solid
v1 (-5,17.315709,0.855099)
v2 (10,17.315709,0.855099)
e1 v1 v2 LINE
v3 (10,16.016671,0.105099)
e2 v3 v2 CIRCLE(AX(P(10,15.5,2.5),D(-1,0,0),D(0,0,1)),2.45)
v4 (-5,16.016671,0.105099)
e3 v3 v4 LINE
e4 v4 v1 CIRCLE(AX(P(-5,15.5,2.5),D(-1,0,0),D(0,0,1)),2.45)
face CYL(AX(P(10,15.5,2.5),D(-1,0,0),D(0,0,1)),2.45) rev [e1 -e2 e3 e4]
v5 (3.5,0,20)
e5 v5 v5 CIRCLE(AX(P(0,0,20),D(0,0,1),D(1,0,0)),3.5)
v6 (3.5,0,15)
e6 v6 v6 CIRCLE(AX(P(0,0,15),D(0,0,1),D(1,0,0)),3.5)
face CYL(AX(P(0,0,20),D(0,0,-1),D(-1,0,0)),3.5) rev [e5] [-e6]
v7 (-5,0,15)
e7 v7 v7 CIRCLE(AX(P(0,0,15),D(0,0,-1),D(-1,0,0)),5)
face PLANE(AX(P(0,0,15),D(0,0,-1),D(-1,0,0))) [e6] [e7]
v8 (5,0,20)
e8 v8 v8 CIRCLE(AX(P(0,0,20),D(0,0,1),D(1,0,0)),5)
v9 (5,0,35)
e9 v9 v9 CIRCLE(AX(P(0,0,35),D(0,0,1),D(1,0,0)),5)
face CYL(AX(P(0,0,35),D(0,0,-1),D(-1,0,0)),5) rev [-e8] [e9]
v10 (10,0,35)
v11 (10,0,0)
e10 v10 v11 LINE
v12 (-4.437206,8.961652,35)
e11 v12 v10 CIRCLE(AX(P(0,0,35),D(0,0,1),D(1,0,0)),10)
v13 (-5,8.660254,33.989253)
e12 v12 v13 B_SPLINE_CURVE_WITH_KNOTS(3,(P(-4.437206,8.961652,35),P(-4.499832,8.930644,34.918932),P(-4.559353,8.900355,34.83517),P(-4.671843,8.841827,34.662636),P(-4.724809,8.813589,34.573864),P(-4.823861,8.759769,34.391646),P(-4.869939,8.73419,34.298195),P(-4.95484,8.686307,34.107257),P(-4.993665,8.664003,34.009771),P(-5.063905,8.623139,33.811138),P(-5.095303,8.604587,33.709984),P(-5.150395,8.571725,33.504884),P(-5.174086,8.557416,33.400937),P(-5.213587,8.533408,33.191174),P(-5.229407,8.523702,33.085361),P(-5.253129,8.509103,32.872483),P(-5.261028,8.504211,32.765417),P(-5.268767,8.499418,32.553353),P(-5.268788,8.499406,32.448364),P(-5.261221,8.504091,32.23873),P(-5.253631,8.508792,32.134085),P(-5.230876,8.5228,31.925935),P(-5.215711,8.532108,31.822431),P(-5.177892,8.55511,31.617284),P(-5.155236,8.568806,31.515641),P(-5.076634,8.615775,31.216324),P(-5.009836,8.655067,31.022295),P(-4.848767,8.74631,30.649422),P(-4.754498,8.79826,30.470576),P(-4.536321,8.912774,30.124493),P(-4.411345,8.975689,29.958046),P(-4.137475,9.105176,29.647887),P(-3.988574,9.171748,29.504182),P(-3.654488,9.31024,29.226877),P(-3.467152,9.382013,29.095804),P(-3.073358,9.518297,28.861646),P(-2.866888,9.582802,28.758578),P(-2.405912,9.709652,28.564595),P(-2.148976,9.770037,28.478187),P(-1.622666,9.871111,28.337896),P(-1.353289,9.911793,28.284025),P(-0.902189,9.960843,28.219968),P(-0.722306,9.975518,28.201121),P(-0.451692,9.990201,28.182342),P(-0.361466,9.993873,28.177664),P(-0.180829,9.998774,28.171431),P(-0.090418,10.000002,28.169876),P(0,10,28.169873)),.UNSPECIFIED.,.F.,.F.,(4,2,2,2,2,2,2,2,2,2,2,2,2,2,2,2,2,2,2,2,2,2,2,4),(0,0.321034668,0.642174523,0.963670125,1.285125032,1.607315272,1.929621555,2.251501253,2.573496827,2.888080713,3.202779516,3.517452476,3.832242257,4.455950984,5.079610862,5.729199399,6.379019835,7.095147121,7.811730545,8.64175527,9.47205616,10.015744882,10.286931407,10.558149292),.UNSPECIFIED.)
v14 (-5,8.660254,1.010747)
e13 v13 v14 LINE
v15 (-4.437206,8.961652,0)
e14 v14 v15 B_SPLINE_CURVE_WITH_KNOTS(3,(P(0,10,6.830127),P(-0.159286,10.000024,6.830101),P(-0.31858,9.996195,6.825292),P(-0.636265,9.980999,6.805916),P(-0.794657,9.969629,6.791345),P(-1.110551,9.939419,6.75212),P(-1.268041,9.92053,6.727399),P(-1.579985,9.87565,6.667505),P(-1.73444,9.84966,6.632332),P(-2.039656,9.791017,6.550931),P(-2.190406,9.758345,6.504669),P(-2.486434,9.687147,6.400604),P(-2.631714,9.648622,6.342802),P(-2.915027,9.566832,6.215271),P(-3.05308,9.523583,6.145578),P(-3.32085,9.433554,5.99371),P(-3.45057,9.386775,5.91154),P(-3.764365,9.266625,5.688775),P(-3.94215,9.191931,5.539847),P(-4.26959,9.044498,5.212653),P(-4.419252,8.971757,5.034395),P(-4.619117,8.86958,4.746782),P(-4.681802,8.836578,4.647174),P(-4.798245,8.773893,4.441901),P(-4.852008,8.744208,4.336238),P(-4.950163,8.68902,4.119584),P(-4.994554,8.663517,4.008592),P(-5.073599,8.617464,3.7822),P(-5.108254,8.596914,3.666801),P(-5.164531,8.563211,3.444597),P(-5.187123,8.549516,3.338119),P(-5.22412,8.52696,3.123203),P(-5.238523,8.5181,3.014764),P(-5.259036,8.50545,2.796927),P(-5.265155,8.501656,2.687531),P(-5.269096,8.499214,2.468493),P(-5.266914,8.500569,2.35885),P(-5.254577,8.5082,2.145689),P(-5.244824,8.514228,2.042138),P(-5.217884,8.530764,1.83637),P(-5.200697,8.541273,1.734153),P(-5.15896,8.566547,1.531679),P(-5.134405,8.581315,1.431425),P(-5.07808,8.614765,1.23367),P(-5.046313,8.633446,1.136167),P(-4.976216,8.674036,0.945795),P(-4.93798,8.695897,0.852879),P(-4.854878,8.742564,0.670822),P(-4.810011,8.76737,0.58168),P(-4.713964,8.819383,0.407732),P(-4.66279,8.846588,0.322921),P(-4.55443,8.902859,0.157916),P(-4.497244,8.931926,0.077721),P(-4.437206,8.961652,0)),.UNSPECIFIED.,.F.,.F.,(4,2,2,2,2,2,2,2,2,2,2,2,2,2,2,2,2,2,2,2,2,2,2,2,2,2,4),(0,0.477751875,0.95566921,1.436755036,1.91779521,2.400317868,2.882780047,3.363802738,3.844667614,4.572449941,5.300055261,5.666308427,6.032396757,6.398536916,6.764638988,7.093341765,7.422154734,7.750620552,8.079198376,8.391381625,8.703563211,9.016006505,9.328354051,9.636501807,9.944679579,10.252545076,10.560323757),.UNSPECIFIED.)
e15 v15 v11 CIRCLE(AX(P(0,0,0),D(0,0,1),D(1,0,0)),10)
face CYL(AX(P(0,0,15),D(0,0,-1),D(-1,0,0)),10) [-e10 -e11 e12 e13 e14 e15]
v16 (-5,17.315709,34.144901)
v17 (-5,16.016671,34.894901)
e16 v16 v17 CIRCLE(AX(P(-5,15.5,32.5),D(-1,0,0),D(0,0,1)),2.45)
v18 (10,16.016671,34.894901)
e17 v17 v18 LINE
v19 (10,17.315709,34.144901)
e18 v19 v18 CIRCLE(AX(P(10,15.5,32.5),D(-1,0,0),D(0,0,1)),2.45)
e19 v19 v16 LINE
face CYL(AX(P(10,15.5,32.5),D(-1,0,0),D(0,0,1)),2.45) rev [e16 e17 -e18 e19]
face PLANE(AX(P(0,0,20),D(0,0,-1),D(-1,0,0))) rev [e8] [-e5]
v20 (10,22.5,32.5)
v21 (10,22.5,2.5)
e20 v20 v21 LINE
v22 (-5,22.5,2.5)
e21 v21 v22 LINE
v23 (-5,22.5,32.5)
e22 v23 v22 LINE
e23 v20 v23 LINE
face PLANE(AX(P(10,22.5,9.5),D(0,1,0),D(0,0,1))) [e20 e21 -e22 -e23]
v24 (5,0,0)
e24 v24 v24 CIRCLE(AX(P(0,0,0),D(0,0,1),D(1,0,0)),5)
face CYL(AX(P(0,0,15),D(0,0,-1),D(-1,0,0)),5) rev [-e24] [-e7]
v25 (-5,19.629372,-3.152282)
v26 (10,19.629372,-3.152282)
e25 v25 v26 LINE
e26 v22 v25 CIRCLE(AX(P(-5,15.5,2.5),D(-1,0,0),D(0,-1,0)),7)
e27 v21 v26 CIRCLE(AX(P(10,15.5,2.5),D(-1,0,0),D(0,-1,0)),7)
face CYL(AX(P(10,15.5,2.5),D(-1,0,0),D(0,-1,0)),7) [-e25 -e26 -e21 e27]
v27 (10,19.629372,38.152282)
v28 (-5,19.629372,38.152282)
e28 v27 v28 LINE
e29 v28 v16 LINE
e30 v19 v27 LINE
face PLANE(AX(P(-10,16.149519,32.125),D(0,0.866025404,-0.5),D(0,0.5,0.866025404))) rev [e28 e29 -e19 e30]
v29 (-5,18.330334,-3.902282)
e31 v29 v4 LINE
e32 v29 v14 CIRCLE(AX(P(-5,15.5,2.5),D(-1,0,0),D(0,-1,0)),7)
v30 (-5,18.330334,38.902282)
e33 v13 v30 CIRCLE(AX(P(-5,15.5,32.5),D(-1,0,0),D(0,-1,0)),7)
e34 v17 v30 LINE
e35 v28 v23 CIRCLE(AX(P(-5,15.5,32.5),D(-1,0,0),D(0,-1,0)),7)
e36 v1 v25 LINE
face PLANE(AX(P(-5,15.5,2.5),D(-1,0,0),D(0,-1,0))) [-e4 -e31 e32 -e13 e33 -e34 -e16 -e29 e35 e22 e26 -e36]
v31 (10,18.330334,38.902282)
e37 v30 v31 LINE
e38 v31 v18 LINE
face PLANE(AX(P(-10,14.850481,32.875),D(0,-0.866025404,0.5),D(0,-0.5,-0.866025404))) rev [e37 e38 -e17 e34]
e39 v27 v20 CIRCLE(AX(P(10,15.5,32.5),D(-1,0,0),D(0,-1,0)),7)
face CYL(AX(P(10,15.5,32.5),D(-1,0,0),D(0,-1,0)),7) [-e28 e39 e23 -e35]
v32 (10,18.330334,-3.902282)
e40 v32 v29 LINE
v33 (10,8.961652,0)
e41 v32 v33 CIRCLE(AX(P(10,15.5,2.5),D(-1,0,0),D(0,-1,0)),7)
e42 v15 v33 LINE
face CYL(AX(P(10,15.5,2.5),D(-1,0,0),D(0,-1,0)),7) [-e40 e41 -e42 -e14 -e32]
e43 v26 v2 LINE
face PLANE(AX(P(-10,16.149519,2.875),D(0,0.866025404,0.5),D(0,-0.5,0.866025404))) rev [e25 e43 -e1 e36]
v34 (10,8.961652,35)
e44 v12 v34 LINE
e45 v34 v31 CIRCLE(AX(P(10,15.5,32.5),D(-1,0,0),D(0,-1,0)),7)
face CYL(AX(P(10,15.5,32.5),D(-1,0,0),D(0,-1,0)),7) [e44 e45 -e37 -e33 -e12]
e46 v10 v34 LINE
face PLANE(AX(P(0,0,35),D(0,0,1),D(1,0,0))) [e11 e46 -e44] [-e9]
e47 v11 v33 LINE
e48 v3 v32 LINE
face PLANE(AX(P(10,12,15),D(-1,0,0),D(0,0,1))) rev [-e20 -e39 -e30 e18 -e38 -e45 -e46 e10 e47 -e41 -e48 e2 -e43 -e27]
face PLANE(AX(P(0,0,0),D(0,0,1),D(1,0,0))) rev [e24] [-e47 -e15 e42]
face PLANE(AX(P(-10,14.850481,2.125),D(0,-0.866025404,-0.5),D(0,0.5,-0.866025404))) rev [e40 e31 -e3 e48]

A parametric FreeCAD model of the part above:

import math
import FreeCAD as App
import Part
import Sketcher
from FreeCAD import Vector
Q = App.Units.Quantity


def add_polygon(sketch, points):
    """Adds a closed chain of lines whose ends are joined by coincident constraints."""
    first, n = sketch.GeometryCount, len(points)
    for a, b in zip(points, points[1:] + points[:1]):
        sketch.addGeometry(Part.LineSegment(App.Vector(*a, 0), App.Vector(*b, 0)), False)
    for i in range(n):
        sketch.addConstraint(Sketcher.Constraint("Coincident", first + i, 2, first + (i + 1) % n, 1))

doc = App.newDocument("Part")
params = doc.addObject("Spreadsheet::Sheet", "Params")
for row, (alias, value) in enumerate([
    ("sketch1_diameter", "10 mm"),
    ("sketch1_radius", "10 mm"),
    ("sketch1_height", "2 mm"),
    ("pad1_length", "15 mm"),
    ("sketch2_diameter", "7 mm"),
    ("sketch2_radius", "10 mm"),
    ("sketch2_height", "12 mm"),
    ("pad2_length", "5 mm"),
    ("sketch3_diameter", "10 mm"),
    ("sketch3_radius", "10 mm"),
    ("sketch3_height", "2 mm"),
    ("pad3_length", "15 mm"),
    ("sketch4_radius", "7 mm"),
    ("sketch4_height", "30 mm"),
    ("pad4_length", "5 mm"),
    ("pad4_length2", "10 mm"),
    ("sketch5_diameter", "4.9 mm"),
    ("sketch6_length", "7 mm"),
    ("sketch6_length2", "1.5 mm"),
], start=1):
    params.set(f"A{row}", alias)
    params.set(f"B{row}", "=" + value)
    params.setAlias(f"B{row}", alias)

body = doc.addObject("PartDesign::Body", "Body")

# Sketch on XY plane
sketch1 = body.newObject("Sketcher::SketchObject", "Sketch")
sketch1.AttachmentSupport = (doc.getObject("XY_Plane"), [""])
sketch1.MapMode = "FlatFace"
sketch1.addGeometry(Part.LineSegment(Vector(10, 12, 0), Vector(0, 12, 0)), False)
sketch1.addGeometry(Part.LineSegment(Vector(0, 12, 0), Vector(0, 10, 0)), False)
sketch1.addGeometry(Part.ArcOfCircle(Part.Circle(Vector(0, 0, 0), Vector(0, 0, 1), 10), math.radians(90), math.radians(360)), False)
sketch1.addGeometry(Part.LineSegment(Vector(10, 0, 0), Vector(10, 12, 0)), False)
sketch1.addGeometry(Part.Circle(Vector(0, 0, 0), Vector(0, 0, 1), 5), False)
sketch1.addConstraint(Sketcher.Constraint("Coincident", 0, 2, 1, 1))
sketch1.addConstraint(Sketcher.Constraint("Coincident", 1, 2, 2, 1))
sketch1.addConstraint(Sketcher.Constraint("Tangent", 2, 2, 3, 1))
sketch1.addConstraint(Sketcher.Constraint("Coincident", 3, 2, 0, 1))
sketch1.addConstraint(Sketcher.Constraint("Horizontal", 0))
sketch1.addConstraint(Sketcher.Constraint("Vertical", 1))
sketch1.addConstraint(Sketcher.Constraint("Vertical", 3))
sketch1.addConstraint(Sketcher.Constraint("Coincident", 2, 3, -1, 1))
sketch1.addConstraint(Sketcher.Constraint("Coincident", 4, 3, -1, 1))
sketch1.addConstraint(Sketcher.Constraint("PointOnObject", 0, 2, -2))
sketch1.addConstraint(Sketcher.Constraint("Diameter", 4, Q("10 mm")))
sketch1.addConstraint(Sketcher.Constraint("Radius", 2, Q("10 mm")))
sketch1.addConstraint(Sketcher.Constraint("DistanceY", 1, 2, 1, 1, Q("2 mm")))
sketch1.setExpression("Constraints[10]", "Params.sketch1_diameter")
sketch1.setExpression("Constraints[11]", "Params.sketch1_radius")
sketch1.setExpression("Constraints[12]", "Params.sketch1_height")
pad1 = body.newObject("PartDesign::Pad", "Pad")
pad1.Profile = sketch1
pad1.setExpression("Length", "Params.pad1_length")

# Sketch on XY plane
sketch2 = body.newObject("Sketcher::SketchObject", "Sketch001")
sketch2.AttachmentSupport = (doc.getObject("XY_Plane"), [""])
sketch2.MapMode = "FlatFace"
sketch2.AttachmentOffset = App.Placement(Vector(0, 0, 15), App.Rotation())
sketch2.addGeometry(Part.LineSegment(Vector(10, 0, 0), Vector(10, 12, 0)), False)
sketch2.addGeometry(Part.LineSegment(Vector(10, 12, 0), Vector(0, 12, 0)), False)
sketch2.addGeometry(Part.LineSegment(Vector(0, 12, 0), Vector(0, 10, 0)), False)
sketch2.addGeometry(Part.ArcOfCircle(Part.Circle(Vector(0, 0, 0), Vector(0, 0, 1), 10), math.radians(90), math.radians(180)), False)
sketch2.addGeometry(Part.ArcOfCircle(Part.Circle(Vector(0, 0, 0), Vector(0, 0, 1), 10), math.radians(180), math.radians(360)), False)
sketch2.addGeometry(Part.Circle(Vector(0, 0, 0), Vector(0, 0, 1), 3.5), False)
sketch2.addConstraint(Sketcher.Constraint("Coincident", 0, 2, 1, 1))
sketch2.addConstraint(Sketcher.Constraint("Coincident", 1, 2, 2, 1))
sketch2.addConstraint(Sketcher.Constraint("Coincident", 2, 2, 3, 1))
sketch2.addConstraint(Sketcher.Constraint("Tangent", 3, 2, 4, 1))
sketch2.addConstraint(Sketcher.Constraint("Tangent", 4, 2, 0, 1))
sketch2.addConstraint(Sketcher.Constraint("Vertical", 0))
sketch2.addConstraint(Sketcher.Constraint("Horizontal", 1))
sketch2.addConstraint(Sketcher.Constraint("Vertical", 2))
sketch2.addConstraint(Sketcher.Constraint("Coincident", 3, 3, -1, 1))
sketch2.addConstraint(Sketcher.Constraint("Coincident", 5, 3, -1, 1))
sketch2.addConstraint(Sketcher.Constraint("Equal", 3, 4))
sketch2.addConstraint(Sketcher.Constraint("PointOnObject", 1, 2, -2))
sketch2.addConstraint(Sketcher.Constraint("PointOnObject", 3, 2, -1))
sketch2.addConstraint(Sketcher.Constraint("Diameter", 5, Q("7 mm")))
sketch2.addConstraint(Sketcher.Constraint("Radius", 3, Q("10 mm")))
sketch2.addConstraint(Sketcher.Constraint("DistanceY", 0, 1, 0, 2, Q("12 mm")))
sketch2.setExpression("Constraints[13]", "Params.sketch2_diameter")
sketch2.setExpression("Constraints[14]", "Params.sketch2_radius")
sketch2.setExpression("Constraints[15]", "Params.sketch2_height")
pad2 = body.newObject("PartDesign::Pad", "Pad001")
pad2.Profile = sketch2
pad2.setExpression("Length", "Params.pad2_length")

# Sketch on XY plane
sketch3 = body.newObject("Sketcher::SketchObject", "Sketch002")
sketch3.AttachmentSupport = (doc.getObject("XY_Plane"), [""])
sketch3.MapMode = "FlatFace"
sketch3.AttachmentOffset = App.Placement(Vector(0, 0, 20), App.Rotation())
sketch3.addGeometry(Part.LineSegment(Vector(10, 12, 0), Vector(0, 12, 0)), False)
sketch3.addGeometry(Part.LineSegment(Vector(0, 12, 0), Vector(0, 10, 0)), False)
sketch3.addGeometry(Part.ArcOfCircle(Part.Circle(Vector(0, 0, 0), Vector(0, 0, 1), 10), math.radians(90), math.radians(360)), False)
sketch3.addGeometry(Part.LineSegment(Vector(10, 0, 0), Vector(10, 12, 0)), False)
sketch3.addGeometry(Part.Circle(Vector(0, 0, 0), Vector(0, 0, 1), 5), False)
sketch3.addConstraint(Sketcher.Constraint("Coincident", 0, 2, 1, 1))
sketch3.addConstraint(Sketcher.Constraint("Coincident", 1, 2, 2, 1))
sketch3.addConstraint(Sketcher.Constraint("Tangent", 2, 2, 3, 1))
sketch3.addConstraint(Sketcher.Constraint("Coincident", 3, 2, 0, 1))
sketch3.addConstraint(Sketcher.Constraint("Horizontal", 0))
sketch3.addConstraint(Sketcher.Constraint("Vertical", 1))
sketch3.addConstraint(Sketcher.Constraint("Vertical", 3))
sketch3.addConstraint(Sketcher.Constraint("Coincident", 2, 3, -1, 1))
sketch3.addConstraint(Sketcher.Constraint("Coincident", 4, 3, -1, 1))
sketch3.addConstraint(Sketcher.Constraint("PointOnObject", 0, 2, -2))
sketch3.addConstraint(Sketcher.Constraint("Diameter", 4, Q("10 mm")))
sketch3.addConstraint(Sketcher.Constraint("Radius", 2, Q("10 mm")))
sketch3.addConstraint(Sketcher.Constraint("DistanceY", 1, 2, 1, 1, Q("2 mm")))
sketch3.setExpression("Constraints[10]", "Params.sketch3_diameter")
sketch3.setExpression("Constraints[11]", "Params.sketch3_radius")
sketch3.setExpression("Constraints[12]", "Params.sketch3_height")
pad3 = body.newObject("PartDesign::Pad", "Pad002")
pad3.Profile = sketch3
pad3.setExpression("Length", "Params.pad3_length")

# Sketch on YZ plane
sketch4 = body.newObject("Sketcher::SketchObject", "Sketch003")
sketch4.AttachmentSupport = (doc.getObject("YZ_Plane"), [""])
sketch4.MapMode = "FlatFace"
sketch4.addGeometry(Part.ArcOfCircle(Part.Circle(Vector(16, 2, 0), Vector(0, 0, 1), 7), math.radians(180), math.radians(360)), False)
sketch4.addGeometry(Part.LineSegment(Vector(8, 2, 0), Vector(8, 32, 0)), False)
sketch4.addGeometry(Part.ArcOfCircle(Part.Circle(Vector(16, 32, 0), Vector(0, 0, 1), 7), math.radians(0), math.radians(180)), False)
sketch4.addGeometry(Part.LineSegment(Vector(22, 32, 0), Vector(22, 2, 0)), False)
sketch4.addConstraint(Sketcher.Constraint("Tangent", 0, 1, 1, 1))
sketch4.addConstraint(Sketcher.Constraint("Tangent", 1, 2, 2, 2))
sketch4.addConstraint(Sketcher.Constraint("Tangent", 2, 1, 3, 1))
sketch4.addConstraint(Sketcher.Constraint("Tangent", 3, 2, 0, 2))
sketch4.addConstraint(Sketcher.Constraint("Vertical", 1))
sketch4.addConstraint(Sketcher.Constraint("Vertical", 3))
sketch4.addConstraint(Sketcher.Constraint("Radius", 0, Q("7 mm")))
sketch4.addConstraint(Sketcher.Constraint("DistanceY", 1, 1, 1, 2, Q("30 mm")))
sketch4.addConstraint(Sketcher.Constraint("DistanceX", -1, 1, 0, 3, Q("15.5 mm")))
sketch4.addConstraint(Sketcher.Constraint("DistanceY", -1, 1, 0, 3, Q("2.5 mm")))
sketch4.setExpression("Constraints[6]", "Params.sketch4_radius")
sketch4.setExpression("Constraints[7]", "Params.sketch4_height")
pad4 = body.newObject("PartDesign::Pad", "Pad003")
pad4.Profile = sketch4
pad4.Type = "TwoLengths"
pad4.setExpression("Length", "Params.pad4_length")
pad4.setExpression("Length2", "Params.pad4_length2")
pad4.Reversed = True

# Sketch on YZ plane
sketch5 = body.newObject("Sketcher::SketchObject", "Sketch004")
sketch5.AttachmentSupport = (doc.getObject("YZ_Plane"), [""])
sketch5.MapMode = "FlatFace"
sketch5.AttachmentOffset = App.Placement(Vector(0, 0, -5), App.Rotation())
sketch5.addGeometry(Part.Circle(Vector(15.5, 2.5, 0), Vector(0, 0, 1), 2.5), False)
sketch5.addGeometry(Part.Circle(Vector(15.5, 32.5, 0), Vector(0, 0, 1), 2.5), False)
sketch5.addConstraint(Sketcher.Constraint("Equal", 0, 1))
sketch5.addConstraint(Sketcher.Constraint("Vertical", 0, 3, 1, 3))
sketch5.addConstraint(Sketcher.Constraint("Diameter", 0, Q("4.9 mm")))
sketch5.addConstraint(Sketcher.Constraint("DistanceY", 0, 3, 1, 3, Q("30 mm")))
sketch5.addConstraint(Sketcher.Constraint("DistanceX", -1, 1, 0, 3, Q("15.5 mm")))
sketch5.addConstraint(Sketcher.Constraint("DistanceY", -1, 1, 0, 3, Q("2.5 mm")))
sketch5.setExpression("Constraints[2]", "Params.sketch5_diameter")
pocket1 = body.newObject("PartDesign::Pocket", "Pocket")
pocket1.Profile = sketch5
pocket1.Type = "ThroughAll"
pocket1.Reversed = True

# Sketch on YZ plane
sketch6 = body.newObject("Sketcher::SketchObject", "Sketch005")
sketch6.AttachmentSupport = (doc.getObject("YZ_Plane"), [""])
sketch6.MapMode = "FlatFace"
sketch6.AttachmentOffset = App.Placement(Vector(0, 0, 10), App.Rotation())
add_polygon(sketch6, [(14.9, 32.9), (16.1, 32.1), (19.6, 38.2), (18.4, 38.9)])  # lines 0-3
add_polygon(sketch6, [(16.1, 2.9), (14.9, 2.1), (18.4, -3.9), (19.6, -3.2)])  # lines 4-7
sketch6.addConstraint(Sketcher.Constraint("Perpendicular", 0, 1))
sketch6.addConstraint(Sketcher.Constraint("Perpendicular", 1, 2))
sketch6.addConstraint(Sketcher.Constraint("Perpendicular", 2, 3))
sketch6.addConstraint(Sketcher.Constraint("Perpendicular", 4, 5))
sketch6.addConstraint(Sketcher.Constraint("Perpendicular", 5, 6))
sketch6.addConstraint(Sketcher.Constraint("Perpendicular", 6, 7))
sketch6.addConstraint(Sketcher.Constraint("Vertical", 3, 2, 4, 2))
sketch6.addConstraint(Sketcher.Constraint("Vertical", 2, 2, 5, 2))
sketch6.addConstraint(Sketcher.Constraint("Vertical", 1, 2, 6, 2))
sketch6.addConstraint(Sketcher.Constraint("Equal", 2, 4))
sketch6.addConstraint(Sketcher.Constraint("Angle", 0, Q("-30 deg")))
sketch6.addConstraint(Sketcher.Constraint("Distance", 1, Q("7 mm")))
sketch6.addConstraint(Sketcher.Constraint("DistanceY", 4, 2, 0, 2, Q("30 mm")))
sketch6.addConstraint(Sketcher.Constraint("Distance", 0, Q("1.5 mm")))
sketch6.addConstraint(Sketcher.Constraint("DistanceY", -1, 1, 0, 2, Q("32.125 mm")))
sketch6.addConstraint(Sketcher.Constraint("DistanceX", -1, 1, 0, 2, Q("16.149519 mm")))
sketch6.setExpression("Constraints[19]", "Params.sketch6_length")
sketch6.setExpression("Constraints[21]", "Params.sketch6_length2")
pocket2 = body.newObject("PartDesign::Pocket", "Pocket001")
pocket2.Profile = sketch6
pocket2.Type = "ThroughAll"

doc.recompute()
